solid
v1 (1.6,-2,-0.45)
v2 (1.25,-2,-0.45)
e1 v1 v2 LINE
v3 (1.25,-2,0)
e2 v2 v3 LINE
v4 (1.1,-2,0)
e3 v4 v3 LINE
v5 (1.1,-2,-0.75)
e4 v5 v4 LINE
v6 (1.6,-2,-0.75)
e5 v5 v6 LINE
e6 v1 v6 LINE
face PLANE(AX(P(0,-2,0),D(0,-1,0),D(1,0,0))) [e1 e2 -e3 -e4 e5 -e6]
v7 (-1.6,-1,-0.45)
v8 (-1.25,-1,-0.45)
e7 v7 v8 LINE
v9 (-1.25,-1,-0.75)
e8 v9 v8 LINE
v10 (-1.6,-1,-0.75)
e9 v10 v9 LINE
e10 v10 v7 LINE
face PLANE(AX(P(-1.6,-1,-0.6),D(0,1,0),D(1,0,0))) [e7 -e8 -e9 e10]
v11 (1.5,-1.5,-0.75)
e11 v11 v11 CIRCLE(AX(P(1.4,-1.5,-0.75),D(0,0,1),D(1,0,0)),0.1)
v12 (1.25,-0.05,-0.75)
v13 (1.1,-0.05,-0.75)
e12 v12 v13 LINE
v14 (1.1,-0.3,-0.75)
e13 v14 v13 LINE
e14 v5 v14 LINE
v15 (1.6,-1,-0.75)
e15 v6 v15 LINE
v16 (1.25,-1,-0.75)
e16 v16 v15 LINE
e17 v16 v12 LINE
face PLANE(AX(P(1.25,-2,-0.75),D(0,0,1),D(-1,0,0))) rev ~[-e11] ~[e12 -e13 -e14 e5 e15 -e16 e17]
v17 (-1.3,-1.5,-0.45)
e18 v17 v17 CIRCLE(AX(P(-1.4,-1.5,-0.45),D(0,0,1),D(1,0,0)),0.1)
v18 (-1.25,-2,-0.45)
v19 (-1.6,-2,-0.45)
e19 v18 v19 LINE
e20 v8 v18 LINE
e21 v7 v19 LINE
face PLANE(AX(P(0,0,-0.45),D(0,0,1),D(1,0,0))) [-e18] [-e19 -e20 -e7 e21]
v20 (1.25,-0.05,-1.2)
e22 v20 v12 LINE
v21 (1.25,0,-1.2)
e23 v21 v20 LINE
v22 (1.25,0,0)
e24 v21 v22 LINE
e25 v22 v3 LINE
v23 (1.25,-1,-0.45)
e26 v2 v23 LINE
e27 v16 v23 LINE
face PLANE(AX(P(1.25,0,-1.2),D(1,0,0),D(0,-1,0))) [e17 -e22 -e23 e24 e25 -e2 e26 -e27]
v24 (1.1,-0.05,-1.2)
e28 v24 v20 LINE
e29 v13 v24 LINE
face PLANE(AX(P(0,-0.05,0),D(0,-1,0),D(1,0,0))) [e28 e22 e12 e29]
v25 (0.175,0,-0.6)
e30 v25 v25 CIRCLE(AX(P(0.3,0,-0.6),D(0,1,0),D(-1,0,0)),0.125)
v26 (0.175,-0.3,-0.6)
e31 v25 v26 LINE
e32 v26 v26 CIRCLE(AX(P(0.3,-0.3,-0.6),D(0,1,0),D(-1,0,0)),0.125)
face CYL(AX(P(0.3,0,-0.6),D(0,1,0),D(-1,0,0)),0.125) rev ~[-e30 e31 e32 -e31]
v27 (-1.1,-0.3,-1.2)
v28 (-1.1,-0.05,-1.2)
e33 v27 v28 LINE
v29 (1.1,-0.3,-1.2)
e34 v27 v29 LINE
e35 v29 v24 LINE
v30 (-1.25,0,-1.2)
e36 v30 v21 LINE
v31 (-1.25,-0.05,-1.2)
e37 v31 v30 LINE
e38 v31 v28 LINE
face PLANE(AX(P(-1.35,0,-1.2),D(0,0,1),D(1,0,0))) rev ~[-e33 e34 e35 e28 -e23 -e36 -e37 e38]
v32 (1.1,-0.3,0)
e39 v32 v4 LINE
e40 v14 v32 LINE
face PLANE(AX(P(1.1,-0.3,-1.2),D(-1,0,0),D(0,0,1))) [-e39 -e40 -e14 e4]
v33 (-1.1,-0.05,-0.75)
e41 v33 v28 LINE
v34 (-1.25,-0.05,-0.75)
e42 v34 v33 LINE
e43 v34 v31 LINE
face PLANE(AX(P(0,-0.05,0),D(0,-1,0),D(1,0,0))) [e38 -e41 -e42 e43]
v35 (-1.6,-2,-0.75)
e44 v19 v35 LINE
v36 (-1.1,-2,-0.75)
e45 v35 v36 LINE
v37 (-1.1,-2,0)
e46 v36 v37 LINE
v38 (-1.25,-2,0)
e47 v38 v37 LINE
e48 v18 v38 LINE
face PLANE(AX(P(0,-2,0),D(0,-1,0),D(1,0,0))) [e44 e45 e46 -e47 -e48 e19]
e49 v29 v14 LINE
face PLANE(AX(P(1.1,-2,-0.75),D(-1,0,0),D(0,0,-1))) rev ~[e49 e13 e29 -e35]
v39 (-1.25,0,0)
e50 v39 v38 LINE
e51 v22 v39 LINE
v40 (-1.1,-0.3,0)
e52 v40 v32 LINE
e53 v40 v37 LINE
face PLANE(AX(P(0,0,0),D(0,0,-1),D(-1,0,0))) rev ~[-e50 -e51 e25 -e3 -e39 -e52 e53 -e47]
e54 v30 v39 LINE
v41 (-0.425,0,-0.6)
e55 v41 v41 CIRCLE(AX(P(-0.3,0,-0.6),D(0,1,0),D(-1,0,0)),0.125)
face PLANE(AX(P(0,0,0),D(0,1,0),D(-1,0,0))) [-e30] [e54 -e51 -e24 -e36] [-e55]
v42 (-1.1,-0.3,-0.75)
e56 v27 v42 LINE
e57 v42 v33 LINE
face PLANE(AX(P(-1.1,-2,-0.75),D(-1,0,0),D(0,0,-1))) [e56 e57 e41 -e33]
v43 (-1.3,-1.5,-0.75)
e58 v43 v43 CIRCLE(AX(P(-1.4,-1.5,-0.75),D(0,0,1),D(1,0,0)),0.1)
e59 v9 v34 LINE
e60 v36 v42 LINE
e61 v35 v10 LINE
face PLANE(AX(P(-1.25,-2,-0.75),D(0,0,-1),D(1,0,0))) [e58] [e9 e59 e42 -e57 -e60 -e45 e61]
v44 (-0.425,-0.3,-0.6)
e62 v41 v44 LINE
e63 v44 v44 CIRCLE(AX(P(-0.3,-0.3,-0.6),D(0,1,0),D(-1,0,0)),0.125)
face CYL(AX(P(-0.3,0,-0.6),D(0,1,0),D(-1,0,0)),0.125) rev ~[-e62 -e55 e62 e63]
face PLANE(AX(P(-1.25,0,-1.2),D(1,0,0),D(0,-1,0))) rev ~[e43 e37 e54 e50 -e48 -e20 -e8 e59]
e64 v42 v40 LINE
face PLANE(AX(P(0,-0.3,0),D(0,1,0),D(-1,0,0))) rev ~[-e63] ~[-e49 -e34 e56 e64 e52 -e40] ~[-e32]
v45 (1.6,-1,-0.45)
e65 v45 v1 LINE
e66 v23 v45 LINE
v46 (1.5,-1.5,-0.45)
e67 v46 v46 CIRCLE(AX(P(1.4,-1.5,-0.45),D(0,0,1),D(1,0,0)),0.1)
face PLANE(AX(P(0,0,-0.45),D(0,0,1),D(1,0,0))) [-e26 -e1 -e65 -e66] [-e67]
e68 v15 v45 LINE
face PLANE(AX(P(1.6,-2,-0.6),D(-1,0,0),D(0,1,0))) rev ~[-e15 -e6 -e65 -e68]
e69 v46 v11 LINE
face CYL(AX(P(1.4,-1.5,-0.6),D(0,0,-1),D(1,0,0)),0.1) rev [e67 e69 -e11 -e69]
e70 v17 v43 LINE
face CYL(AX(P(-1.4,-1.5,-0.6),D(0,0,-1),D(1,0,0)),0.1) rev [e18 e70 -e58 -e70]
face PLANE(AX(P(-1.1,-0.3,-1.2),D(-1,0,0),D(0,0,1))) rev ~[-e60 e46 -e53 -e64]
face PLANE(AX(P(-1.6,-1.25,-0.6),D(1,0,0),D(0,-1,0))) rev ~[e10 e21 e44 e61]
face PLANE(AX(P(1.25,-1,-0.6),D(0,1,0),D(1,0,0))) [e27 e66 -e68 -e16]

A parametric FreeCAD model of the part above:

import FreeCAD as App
import Part
import Sketcher

V = App.Vector


def add_polygon(sketch, points):
    """Adds a closed chain of lines whose ends are joined by coincident constraints."""
    first, n = sketch.GeometryCount, len(points)
    for a, b in zip(points, points[1:] + points[:1]):
        sketch.addGeometry(Part.LineSegment(App.Vector(*a, 0), App.Vector(*b, 0)), False)
    for i in range(n):
        sketch.addConstraint(Sketcher.Constraint("Coincident", first + i, 2, first + (i + 1) % n, 1))

doc = App.newDocument("Part")
body = doc.addObject("PartDesign::Body", "Body")

sketch1 = body.newObject("Sketcher::SketchObject", "Sketch")
sketch1.AttachmentSupport = (doc.getObject("XZ_Plane"), [""])
sketch1.MapMode = "FlatFace"
add_polygon(sketch1, [(-1.35, 0), (1.35, 0), (1.35, -1.2), (-1.35, -1.2)])
sketch1.addGeometry(Part.Circle(V(0.3, -0.6, 0), V(0, 0, 1), 0.125), False)
sketch1.addGeometry(Part.Circle(V(-0.3, -0.6, 0), V(0, 0, 1), 0.125), False)
sketch1.addConstraint([
    Sketcher.Constraint("Horizontal", 0),
    Sketcher.Constraint("Vertical", 1),
    Sketcher.Constraint("Horizontal", 2),
    Sketcher.Constraint("Vertical", 3),
    Sketcher.Constraint("Equal", 4, 5),
    Sketcher.Constraint("Symmetric", 0, 2, 3, 2, -1, 1),
    Sketcher.Constraint("Symmetric", 4, 3, 5, 3, -2),
    Sketcher.Constraint("DistanceX", 0, 1, 0, 2, 2.7),
    Sketcher.Constraint("DistanceY", 1, 2, 1, 1, 1.2),
    Sketcher.Constraint("Diameter", 4, 0.25),
    Sketcher.Constraint("DistanceX", -1, 1, 4, 3, 0.3),
    Sketcher.Constraint("DistanceY", 4, 3, -1, 1, 0.6),
])
pad1 = body.newObject("PartDesign::Pad", "Pad")
pad1.Profile = sketch1
pad1.Length = 0.3

sketch2 = body.newObject("Sketcher::SketchObject", "Sketch001")
sketch2.AttachmentSupport = (doc.getObject("XZ_Plane"), [""])
sketch2.MapMode = "FlatFace"
sketch2.AttachmentOffset = App.Placement(V(0, 0, 0.3), App.Rotation())
add_polygon(sketch2, [(1.35, -1.2), (1.35, 0), (1.1, 0), (1.1, -1.2)])
add_polygon(sketch2, [(-1.1, -1.2), (-1.1, 0), (-1.35, 0), (-1.35, -1.2)])
sketch2.addConstraint([
    Sketcher.Constraint("Vertical", 0),
    Sketcher.Constraint("Horizontal", 1),
    Sketcher.Constraint("Vertical", 2),
    Sketcher.Constraint("Horizontal", 3),
    Sketcher.Constraint("Vertical", 4),
    Sketcher.Constraint("Horizontal", 5),
    Sketcher.Constraint("Vertical", 6),
    Sketcher.Constraint("Horizontal", 7),
    Sketcher.Constraint("Symmetric", 1, 2, 4, 2, -1, 1),
    Sketcher.Constraint("Symmetric", 0, 2, 5, 2, -2),
    Sketcher.Constraint("Horizontal", 3, 2, 6, 2),
    Sketcher.Constraint("DistanceY", 0, 1, 0, 2, 1.2),
    Sketcher.Constraint("DistanceX", 1, 2, 1, 1, 0.25),
    Sketcher.Constraint("DistanceX", -1, 1, 1, 2, 1.1),
])
pad2 = body.newObject("PartDesign::Pad", "Pad001")
pad2.Profile = sketch2
pad2.Length = 1.7

sketch3 = body.newObject("Sketcher::SketchObject", "Sketch002")
sketch3.AttachmentSupport = (doc.getObject("XY_Plane"), [""])
sketch3.MapMode = "FlatFace"
sketch3.AttachmentOffset = App.Placement(V(0, 0, -1.2), App.Rotation())
add_polygon(sketch3, [(1.35, -2.25), (1.25, -2.25), (1.25, 0), (1.35, 0)])
add_polygon(sketch3, [(-1.25, 0), (-1.25, -2.25), (-1.35, -2.25), (-1.35, 0)])
sketch3.addConstraint([
    Sketcher.Constraint("Horizontal", 0),
    Sketcher.Constraint("Vertical", 1),
    Sketcher.Constraint("Horizontal", 2),
    Sketcher.Constraint("Vertical", 3),
    Sketcher.Constraint("Vertical", 4),
    Sketcher.Constraint("Horizontal", 5),
    Sketcher.Constraint("Vertical", 6),
    Sketcher.Constraint("Horizontal", 7),
    Sketcher.Constraint("Symmetric", 2, 2, 6, 2, -1, 1),
    Sketcher.Constraint("Symmetric", 0, 2, 4, 2, -2),
    Sketcher.Constraint("PointOnObject", 1, 2, -1),
    Sketcher.Constraint("DistanceX", 0, 2, 0, 1, 0.1),
    Sketcher.Constraint("DistanceY", 1, 1, 1, 2, 2.25),
    Sketcher.Constraint("DistanceX", 4, 2, 0, 2, 2.5),
])
pocket1 = body.newObject("PartDesign::Pocket", "Pocket")
pocket1.Profile = sketch3
pocket1.Length = 4
pocket1.Reversed = True

sketch4 = body.newObject("Sketcher::SketchObject", "Sketch003")
sketch4.AttachmentSupport = (doc.getObject("XY_Plane"), [""])
sketch4.MapMode = "FlatFace"
sketch4.AttachmentOffset = App.Placement(V(0, 0, -0.6), App.Rotation())
add_polygon(sketch4, [(1.6, -2), (1.6, -1), (1.25, -1), (1.25, -2)])
sketch4.addGeometry(Part.Circle(V(1.4, -1.5, 0), V(0, 0, 1), 0.1), False)
add_polygon(sketch4, [(-1.1, -2), (-1.1, -1), (-1.6, -1), (-1.6, -2)])
sketch4.addGeometry(Part.Circle(V(-1.4, -1.5, 0), V(0, 0, 1), 0.1), False)
sketch4.addConstraint([
    Sketcher.Constraint("Vertical", 0),
    Sketcher.Constraint("Horizontal", 1),
    Sketcher.Constraint("Vertical", 2),
    Sketcher.Constraint("Horizontal", 3),
    Sketcher.Constraint("Vertical", 5),
    Sketcher.Constraint("Horizontal", 6),
    Sketcher.Constraint("Vertical", 7),
    Sketcher.Constraint("Horizontal", 8),
    Sketcher.Constraint("Equal", 4, 9),
    Sketcher.Constraint("Symmetric", 4, 3, 9, 3, -2),
    Sketcher.Constraint("Symmetric", 0, 2, 6, 2, -2),
    Sketcher.Constraint("Horizontal", 3, 2, 7, 2),
    Sketcher.Constraint("Diameter", 4, 0.2),
    Sketcher.Constraint("DistanceY", 0, 1, 0, 2, 1.0),
    Sketcher.Constraint("DistanceX", 6, 2, 6, 1, 0.5),
    Sketcher.Constraint("DistanceY", 0, 2, -1, 1, 1.0),
    Sketcher.Constraint("DistanceX", 9, 3, 0, 2, 3.0),
    Sketcher.Constraint("DistanceX", 1, 2, 1, 1, 0.35),
    Sketcher.Constraint("DistanceX", -1, 1, 4, 3, 1.4),
    Sketcher.Constraint("DistanceY", 4, 3, -1, 1, 1.5),
])
pad3 = body.newObject("PartDesign::Pad", "Pad002")
pad3.Profile = sketch4
pad3.Length = 0.3
pad3.Midplane = True

sketch5 = body.newObject("Sketcher::SketchObject", "Sketch004")
sketch5.AttachmentSupport = (doc.getObject("XZ_Plane"), [""])
sketch5.MapMode = "FlatFace"
sketch5.AttachmentOffset = App.Placement(V(0, 0, 2), App.Rotation())
add_polygon(sketch5, [(-1.1, -0.75), (-1.25, -0.75), (-1.25, -1.2), (-1.1, -1.2)])
add_polygon(sketch5, [(1.1, -1.2), (1.25, -1.2), (1.25, -0.75), (1.1, -0.75)])
sketch5.addConstraint([
    Sketcher.Constraint("Horizontal", 0),
    Sketcher.Constraint("Vertical", 1),
    Sketcher.Constraint("Horizontal", 2),
    Sketcher.Constraint("Vertical", 3),
    Sketcher.Constraint("Horizontal", 4),
    Sketcher.Constraint("Vertical", 5),
    Sketcher.Constraint("Horizontal", 6),
    Sketcher.Constraint("Vertical", 7),
    Sketcher.Constraint("Symmetric", 1, 2, 4, 2, -2),
    Sketcher.Constraint("Symmetric", 3, 2, 6, 2, -2),
    Sketcher.Constraint("DistanceX", 0, 2, 0, 1, 0.15),
    Sketcher.Constraint("DistanceY", 1, 2, 1, 1, 0.45),
    Sketcher.Constraint("DistanceY", 1, 2, -1, 1, 1.2),
    Sketcher.Constraint("DistanceX", 2, 2, -1, 1, 1.1),
])
pocket2 = body.newObject("PartDesign::Pocket", "Pocket001")
pocket2.Profile = sketch5
pocket2.Length = 1.95

doc.recompute()
